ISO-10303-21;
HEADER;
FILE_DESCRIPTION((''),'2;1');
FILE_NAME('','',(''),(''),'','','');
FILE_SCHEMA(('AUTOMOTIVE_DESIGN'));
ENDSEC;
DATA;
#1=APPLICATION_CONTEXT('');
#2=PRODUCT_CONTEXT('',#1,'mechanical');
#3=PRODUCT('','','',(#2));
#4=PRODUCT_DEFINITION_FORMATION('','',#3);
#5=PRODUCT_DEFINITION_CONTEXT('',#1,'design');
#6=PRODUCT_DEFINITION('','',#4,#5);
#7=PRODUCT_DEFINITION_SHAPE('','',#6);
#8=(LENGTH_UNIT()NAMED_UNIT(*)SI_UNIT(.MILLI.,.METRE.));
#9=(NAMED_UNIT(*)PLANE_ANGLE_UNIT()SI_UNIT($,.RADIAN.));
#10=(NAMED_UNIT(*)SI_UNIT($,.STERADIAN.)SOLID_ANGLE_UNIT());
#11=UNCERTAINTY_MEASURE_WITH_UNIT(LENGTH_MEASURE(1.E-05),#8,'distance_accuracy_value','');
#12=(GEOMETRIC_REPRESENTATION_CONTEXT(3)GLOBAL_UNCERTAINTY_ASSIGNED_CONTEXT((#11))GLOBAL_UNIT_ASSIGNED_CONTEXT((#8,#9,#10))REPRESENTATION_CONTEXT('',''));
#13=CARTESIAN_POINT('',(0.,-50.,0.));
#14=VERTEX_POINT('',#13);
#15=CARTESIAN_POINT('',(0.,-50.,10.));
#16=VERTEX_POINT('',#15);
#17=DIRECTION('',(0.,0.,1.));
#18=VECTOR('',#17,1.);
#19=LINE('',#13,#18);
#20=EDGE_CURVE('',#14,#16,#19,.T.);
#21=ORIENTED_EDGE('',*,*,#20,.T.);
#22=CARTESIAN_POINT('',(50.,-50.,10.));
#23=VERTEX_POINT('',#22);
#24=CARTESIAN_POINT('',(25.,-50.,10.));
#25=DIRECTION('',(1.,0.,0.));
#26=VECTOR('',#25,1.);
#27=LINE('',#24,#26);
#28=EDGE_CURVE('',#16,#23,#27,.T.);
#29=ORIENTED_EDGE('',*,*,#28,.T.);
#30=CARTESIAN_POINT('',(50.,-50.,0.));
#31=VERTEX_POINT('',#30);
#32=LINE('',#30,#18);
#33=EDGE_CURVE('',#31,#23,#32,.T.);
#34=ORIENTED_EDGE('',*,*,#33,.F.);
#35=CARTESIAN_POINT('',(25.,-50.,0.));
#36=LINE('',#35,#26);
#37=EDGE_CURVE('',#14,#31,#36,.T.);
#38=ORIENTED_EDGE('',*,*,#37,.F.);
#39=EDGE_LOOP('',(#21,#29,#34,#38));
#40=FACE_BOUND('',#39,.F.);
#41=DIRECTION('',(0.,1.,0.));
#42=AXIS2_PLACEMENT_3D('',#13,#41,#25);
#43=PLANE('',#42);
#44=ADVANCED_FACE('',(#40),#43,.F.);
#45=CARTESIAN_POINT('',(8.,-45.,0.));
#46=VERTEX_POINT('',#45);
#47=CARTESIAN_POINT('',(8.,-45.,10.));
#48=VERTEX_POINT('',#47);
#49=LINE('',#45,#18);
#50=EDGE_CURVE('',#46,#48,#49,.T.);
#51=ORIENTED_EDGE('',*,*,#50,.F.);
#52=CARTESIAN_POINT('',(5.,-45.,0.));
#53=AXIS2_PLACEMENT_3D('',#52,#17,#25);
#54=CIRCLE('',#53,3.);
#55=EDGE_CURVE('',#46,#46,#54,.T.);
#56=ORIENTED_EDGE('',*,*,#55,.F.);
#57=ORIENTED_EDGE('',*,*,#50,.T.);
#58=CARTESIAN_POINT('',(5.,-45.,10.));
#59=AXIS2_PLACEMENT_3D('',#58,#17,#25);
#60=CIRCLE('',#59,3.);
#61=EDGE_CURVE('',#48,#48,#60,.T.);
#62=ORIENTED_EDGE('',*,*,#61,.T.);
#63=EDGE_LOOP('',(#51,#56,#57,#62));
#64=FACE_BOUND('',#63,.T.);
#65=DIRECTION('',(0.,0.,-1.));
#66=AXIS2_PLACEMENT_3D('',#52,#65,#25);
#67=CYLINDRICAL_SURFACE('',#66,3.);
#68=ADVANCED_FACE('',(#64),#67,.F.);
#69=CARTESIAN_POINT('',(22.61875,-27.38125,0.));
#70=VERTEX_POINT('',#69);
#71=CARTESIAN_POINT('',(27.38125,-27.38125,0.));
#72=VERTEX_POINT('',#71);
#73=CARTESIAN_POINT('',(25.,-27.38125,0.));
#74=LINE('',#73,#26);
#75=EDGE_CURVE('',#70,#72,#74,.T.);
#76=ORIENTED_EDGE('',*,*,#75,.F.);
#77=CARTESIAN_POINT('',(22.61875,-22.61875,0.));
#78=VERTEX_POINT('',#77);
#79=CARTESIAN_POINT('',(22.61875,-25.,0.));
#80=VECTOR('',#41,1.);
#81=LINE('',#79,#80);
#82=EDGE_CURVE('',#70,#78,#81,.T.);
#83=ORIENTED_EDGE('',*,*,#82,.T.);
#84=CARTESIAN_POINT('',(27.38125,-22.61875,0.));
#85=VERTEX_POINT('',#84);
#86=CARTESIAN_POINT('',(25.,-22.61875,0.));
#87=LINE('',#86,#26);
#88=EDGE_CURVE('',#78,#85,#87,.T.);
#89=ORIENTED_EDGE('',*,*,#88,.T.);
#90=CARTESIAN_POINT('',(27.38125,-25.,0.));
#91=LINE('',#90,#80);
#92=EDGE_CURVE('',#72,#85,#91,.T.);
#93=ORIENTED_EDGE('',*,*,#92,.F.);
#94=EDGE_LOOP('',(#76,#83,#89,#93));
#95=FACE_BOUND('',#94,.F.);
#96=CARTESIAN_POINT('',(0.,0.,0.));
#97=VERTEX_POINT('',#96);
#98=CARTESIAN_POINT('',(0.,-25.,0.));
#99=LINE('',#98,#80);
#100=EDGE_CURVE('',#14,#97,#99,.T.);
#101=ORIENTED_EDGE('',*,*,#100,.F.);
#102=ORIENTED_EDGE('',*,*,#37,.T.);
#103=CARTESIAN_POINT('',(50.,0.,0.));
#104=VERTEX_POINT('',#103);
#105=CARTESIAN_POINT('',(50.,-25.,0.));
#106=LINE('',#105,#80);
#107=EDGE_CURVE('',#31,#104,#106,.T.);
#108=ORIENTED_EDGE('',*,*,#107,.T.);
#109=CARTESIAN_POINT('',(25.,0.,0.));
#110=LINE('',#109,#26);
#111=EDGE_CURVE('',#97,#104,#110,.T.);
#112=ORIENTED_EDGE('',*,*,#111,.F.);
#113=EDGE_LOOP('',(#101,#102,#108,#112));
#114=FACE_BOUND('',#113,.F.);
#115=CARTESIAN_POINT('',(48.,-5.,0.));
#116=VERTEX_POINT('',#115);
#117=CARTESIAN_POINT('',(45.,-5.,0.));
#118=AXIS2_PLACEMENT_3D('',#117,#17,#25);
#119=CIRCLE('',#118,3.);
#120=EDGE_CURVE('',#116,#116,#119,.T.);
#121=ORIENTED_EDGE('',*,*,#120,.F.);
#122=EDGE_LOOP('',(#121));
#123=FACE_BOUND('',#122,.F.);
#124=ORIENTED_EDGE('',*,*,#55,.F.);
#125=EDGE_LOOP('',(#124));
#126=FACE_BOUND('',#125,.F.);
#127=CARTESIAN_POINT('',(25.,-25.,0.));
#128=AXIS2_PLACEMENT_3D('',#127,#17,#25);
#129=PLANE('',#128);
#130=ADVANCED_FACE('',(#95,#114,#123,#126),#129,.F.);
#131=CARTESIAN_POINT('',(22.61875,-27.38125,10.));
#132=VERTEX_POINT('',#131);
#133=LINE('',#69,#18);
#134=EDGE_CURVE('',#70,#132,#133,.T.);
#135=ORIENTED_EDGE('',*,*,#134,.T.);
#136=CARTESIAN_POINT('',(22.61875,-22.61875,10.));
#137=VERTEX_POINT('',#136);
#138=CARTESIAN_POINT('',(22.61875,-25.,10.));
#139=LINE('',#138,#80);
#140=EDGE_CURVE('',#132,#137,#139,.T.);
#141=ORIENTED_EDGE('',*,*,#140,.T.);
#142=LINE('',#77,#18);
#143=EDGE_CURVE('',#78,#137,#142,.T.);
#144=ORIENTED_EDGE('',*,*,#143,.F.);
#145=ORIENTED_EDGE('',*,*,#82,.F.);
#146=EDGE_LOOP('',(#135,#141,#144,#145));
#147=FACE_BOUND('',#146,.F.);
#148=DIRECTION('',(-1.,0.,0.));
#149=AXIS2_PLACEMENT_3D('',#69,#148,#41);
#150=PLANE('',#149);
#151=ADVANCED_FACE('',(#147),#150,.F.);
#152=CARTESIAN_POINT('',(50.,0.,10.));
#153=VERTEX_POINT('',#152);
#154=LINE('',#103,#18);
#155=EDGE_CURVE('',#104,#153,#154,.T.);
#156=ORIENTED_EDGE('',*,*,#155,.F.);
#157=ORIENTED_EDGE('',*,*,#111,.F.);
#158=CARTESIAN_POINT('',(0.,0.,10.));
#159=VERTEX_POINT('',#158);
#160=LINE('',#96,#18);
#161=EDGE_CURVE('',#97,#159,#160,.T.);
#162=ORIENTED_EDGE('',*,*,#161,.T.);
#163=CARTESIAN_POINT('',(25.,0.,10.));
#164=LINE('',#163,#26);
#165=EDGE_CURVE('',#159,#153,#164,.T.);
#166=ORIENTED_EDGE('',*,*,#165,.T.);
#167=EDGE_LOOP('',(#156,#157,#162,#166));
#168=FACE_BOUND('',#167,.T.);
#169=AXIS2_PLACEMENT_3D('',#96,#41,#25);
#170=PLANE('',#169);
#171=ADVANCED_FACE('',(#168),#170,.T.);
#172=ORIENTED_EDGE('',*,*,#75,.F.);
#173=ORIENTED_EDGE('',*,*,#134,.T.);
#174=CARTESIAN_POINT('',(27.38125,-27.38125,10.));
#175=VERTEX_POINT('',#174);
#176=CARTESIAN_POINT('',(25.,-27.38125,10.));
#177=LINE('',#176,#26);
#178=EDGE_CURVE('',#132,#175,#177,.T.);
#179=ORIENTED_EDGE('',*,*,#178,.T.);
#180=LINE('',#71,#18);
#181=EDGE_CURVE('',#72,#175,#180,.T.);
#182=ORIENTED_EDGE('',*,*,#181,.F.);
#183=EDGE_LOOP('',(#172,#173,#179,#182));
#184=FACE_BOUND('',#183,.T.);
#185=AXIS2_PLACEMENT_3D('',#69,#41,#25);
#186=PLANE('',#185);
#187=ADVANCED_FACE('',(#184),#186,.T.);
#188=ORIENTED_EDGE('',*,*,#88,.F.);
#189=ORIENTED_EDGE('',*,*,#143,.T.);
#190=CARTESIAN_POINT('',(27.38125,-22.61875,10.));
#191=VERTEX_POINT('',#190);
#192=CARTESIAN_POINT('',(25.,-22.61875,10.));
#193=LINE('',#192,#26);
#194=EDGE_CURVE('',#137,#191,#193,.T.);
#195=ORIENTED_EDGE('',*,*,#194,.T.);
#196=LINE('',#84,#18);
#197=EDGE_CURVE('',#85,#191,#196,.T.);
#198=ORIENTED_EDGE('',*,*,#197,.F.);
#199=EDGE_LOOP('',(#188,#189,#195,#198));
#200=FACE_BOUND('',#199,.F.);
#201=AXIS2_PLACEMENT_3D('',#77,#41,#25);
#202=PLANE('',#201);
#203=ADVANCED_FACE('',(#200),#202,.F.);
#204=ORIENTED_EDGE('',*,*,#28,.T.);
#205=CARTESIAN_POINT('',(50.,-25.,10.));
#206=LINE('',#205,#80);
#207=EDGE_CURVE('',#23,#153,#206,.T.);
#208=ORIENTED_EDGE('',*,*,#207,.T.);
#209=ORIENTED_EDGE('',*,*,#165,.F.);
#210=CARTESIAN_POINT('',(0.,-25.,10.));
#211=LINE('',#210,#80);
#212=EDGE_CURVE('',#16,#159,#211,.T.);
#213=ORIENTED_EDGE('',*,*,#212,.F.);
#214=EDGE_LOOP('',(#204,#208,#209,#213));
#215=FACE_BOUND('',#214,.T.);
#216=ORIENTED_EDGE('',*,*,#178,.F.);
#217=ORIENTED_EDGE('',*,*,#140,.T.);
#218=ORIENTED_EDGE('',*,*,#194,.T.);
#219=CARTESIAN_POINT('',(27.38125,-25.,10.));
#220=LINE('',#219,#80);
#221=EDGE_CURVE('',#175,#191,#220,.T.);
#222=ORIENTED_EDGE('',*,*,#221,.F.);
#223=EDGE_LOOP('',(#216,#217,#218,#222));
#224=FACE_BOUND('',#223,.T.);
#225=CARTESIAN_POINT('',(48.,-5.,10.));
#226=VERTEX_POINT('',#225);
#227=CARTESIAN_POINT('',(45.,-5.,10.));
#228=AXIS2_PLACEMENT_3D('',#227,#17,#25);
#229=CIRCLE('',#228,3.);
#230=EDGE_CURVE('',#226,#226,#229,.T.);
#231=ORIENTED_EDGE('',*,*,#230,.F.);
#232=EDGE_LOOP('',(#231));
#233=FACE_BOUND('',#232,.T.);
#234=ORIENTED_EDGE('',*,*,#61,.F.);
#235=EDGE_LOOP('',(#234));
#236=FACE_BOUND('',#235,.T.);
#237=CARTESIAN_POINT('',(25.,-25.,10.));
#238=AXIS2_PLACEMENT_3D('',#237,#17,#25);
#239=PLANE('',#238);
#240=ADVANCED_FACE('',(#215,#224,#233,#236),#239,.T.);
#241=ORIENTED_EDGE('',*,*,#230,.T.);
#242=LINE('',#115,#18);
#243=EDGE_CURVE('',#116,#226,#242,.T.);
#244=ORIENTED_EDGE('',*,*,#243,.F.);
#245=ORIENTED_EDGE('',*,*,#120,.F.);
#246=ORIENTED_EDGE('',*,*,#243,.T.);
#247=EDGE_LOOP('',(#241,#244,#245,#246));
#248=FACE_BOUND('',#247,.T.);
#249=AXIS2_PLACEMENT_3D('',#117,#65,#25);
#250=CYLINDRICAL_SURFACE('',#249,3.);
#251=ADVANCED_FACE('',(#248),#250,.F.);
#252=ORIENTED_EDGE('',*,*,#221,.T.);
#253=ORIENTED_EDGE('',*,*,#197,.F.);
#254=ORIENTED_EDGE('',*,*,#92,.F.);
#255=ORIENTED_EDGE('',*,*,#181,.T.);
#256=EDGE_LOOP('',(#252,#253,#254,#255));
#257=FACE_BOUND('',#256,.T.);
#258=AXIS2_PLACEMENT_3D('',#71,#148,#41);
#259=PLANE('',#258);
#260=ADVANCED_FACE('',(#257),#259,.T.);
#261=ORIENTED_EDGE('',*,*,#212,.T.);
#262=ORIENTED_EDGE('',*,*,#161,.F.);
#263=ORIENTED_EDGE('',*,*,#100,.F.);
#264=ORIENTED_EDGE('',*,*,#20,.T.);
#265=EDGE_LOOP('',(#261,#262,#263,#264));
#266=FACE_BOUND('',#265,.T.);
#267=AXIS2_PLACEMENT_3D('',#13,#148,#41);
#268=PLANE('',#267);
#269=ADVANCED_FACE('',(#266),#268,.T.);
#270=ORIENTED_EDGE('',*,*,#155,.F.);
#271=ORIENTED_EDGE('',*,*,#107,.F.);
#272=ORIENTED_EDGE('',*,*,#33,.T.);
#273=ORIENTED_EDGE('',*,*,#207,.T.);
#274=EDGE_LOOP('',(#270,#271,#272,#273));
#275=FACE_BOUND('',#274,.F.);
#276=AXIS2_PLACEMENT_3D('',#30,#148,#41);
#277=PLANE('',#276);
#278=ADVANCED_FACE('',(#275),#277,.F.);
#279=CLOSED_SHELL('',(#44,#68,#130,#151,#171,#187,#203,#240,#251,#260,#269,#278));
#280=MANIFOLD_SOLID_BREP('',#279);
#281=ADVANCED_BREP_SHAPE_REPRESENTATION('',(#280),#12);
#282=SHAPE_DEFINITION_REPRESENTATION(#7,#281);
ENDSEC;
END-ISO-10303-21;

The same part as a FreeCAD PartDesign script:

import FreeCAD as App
import Part
import Sketcher

V = App.Vector
Q = App.Units.Quantity

doc = App.newDocument("Part")
body = doc.addObject("PartDesign::Body", "Body")

# Sketch on XY plane
sketch1 = body.newObject("Sketcher::SketchObject", "Sketch")
sketch1.AttachmentSupport = (doc.getObject("XY_Plane"), [""])
sketch1.MapMode = "FlatFace"
sketch1.addGeometry([
    Part.LineSegment(V(0, 0, 0), V(0, -50, 0)),  # 0
    Part.LineSegment(V(0, -50, 0), V(50, -50, 0)),  # 1
    Part.LineSegment(V(50, -50, 0), V(50, 0, 0)),  # 2
    Part.LineSegment(V(50, 0, 0), V(0, 0, 0)),  # 3
    Part.Circle(V(5, -45, 0), V(0, 0, 1), 3),  # 4
    Part.LineSegment(V(27.4, -27.4, 0), V(22.6, -27.4, 0)),  # 5
    Part.LineSegment(V(22.6, -27.4, 0), V(22.6, -22.6, 0)),  # 6
    Part.LineSegment(V(22.6, -22.6, 0), V(27.4, -22.6, 0)),  # 7
    Part.LineSegment(V(27.4, -22.6, 0), V(27.4, -27.4, 0)),  # 8
    Part.Circle(V(45, -5, 0), V(0, 0, 1), 3),  # 9
], False)
sketch1.addConstraint([
    Sketcher.Constraint("Coincident", 0, 2, 1, 1),
    Sketcher.Constraint("Coincident", 1, 2, 2, 1),
    Sketcher.Constraint("Coincident", 2, 2, 3, 1),
    Sketcher.Constraint("Coincident", 3, 2, 0, 1),
    Sketcher.Constraint("Coincident", 5, 2, 6, 1),
    Sketcher.Constraint("Coincident", 6, 2, 7, 1),
    Sketcher.Constraint("Coincident", 7, 2, 8, 1),
    Sketcher.Constraint("Coincident", 8, 2, 5, 1),
    Sketcher.Constraint("Vertical", 0),
    Sketcher.Constraint("Horizontal", 1),
    Sketcher.Constraint("Vertical", 2),
    Sketcher.Constraint("Horizontal", 3),
    Sketcher.Constraint("Horizontal", 5),
    Sketcher.Constraint("Vertical", 6),
    Sketcher.Constraint("Horizontal", 7),
    Sketcher.Constraint("Vertical", 8),
    Sketcher.Constraint("Coincident", 3, 2, -1, 1),
    Sketcher.Constraint("Equal", 4, 9),
    Sketcher.Constraint("Equal", 3, 0),
    Sketcher.Constraint("Equal", 7, 6),
    Sketcher.Constraint("Diameter", 4, Q("6 mm")),
    Sketcher.Constraint("DistanceX", 1, 1, 1, 2, Q("50 mm")),
    Sketcher.Constraint("DistanceX", -1, 1, 4, 3, Q("5 mm")),
    Sketcher.Constraint("DistanceY", 4, 3, -1, 1, Q("45 mm")),
    Sketcher.Constraint("DistanceX", -1, 1, 9, 3, Q("45 mm")),
    Sketcher.Constraint("DistanceY", 9, 3, -1, 1, Q("5 mm")),
    Sketcher.Constraint("DistanceX", 5, 2, 5, 1, Q("4.7625 mm")),
    Sketcher.Constraint("DistanceX", -1, 1, 5, 2, Q("22.61875 mm")),
    Sketcher.Constraint("DistanceY", 5, 2, -1, 1, Q("27.38125 mm")),
])
pad1 = body.newObject("PartDesign::Pad", "Pad")
pad1.Profile = sketch1
pad1.Length = 10

doc.recompute()
